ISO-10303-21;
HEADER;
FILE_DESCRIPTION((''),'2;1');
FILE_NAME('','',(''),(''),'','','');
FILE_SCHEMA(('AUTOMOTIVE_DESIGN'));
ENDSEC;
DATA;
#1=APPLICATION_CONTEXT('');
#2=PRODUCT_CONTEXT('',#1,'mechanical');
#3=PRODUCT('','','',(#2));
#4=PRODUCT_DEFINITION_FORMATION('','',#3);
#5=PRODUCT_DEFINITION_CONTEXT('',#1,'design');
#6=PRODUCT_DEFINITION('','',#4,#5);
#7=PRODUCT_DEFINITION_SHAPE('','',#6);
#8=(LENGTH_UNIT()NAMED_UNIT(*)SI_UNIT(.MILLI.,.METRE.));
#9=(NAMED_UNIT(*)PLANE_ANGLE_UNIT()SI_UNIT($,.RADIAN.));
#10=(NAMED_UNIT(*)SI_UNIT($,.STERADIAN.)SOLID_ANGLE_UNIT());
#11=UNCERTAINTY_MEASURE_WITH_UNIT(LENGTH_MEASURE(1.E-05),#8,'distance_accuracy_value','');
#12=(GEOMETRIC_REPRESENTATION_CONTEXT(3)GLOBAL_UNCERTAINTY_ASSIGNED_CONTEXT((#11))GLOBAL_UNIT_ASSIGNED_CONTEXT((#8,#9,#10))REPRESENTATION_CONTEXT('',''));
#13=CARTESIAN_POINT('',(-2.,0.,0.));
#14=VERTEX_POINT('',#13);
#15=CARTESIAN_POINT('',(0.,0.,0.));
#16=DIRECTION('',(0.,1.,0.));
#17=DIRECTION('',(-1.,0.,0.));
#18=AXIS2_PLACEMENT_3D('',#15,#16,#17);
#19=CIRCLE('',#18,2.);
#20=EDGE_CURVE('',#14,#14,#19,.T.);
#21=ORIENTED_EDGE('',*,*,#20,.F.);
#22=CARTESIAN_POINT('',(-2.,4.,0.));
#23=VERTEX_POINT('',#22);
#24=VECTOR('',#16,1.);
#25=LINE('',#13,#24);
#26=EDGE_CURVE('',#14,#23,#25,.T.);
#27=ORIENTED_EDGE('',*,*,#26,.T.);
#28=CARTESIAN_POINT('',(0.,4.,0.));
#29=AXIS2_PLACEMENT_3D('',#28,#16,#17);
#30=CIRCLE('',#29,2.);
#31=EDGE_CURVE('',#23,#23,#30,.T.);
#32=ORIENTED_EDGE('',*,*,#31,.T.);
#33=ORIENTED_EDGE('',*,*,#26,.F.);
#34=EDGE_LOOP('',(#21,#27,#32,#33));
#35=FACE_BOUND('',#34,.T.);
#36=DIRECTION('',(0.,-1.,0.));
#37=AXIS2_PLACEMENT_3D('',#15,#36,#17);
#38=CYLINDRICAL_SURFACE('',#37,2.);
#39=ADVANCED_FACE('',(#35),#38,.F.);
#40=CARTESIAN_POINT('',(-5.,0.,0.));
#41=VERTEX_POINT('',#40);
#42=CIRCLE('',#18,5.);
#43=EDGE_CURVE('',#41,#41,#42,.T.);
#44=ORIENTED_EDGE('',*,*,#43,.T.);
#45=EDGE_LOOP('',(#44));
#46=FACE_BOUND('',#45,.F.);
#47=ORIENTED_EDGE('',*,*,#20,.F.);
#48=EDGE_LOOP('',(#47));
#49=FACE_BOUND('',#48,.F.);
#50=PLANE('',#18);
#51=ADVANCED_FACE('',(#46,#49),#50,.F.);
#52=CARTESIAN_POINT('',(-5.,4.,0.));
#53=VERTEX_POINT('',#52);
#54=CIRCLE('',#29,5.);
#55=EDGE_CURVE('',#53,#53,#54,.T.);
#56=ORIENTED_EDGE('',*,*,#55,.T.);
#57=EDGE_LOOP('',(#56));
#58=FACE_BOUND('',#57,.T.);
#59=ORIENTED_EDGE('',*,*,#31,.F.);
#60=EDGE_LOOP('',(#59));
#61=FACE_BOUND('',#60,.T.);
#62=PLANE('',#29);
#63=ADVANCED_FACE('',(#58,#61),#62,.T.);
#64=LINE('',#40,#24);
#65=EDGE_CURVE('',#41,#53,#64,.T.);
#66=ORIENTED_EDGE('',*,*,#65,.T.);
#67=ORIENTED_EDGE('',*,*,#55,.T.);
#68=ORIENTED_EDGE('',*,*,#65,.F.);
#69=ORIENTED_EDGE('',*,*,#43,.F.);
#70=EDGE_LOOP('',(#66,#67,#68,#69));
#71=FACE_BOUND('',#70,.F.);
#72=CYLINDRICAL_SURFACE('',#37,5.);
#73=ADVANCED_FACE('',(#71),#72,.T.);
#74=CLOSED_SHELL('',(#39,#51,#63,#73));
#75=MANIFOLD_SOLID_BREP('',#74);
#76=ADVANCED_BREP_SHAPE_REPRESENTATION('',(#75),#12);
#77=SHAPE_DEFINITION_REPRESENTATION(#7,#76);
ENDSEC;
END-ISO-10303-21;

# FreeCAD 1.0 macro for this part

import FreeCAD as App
import Part
import Sketcher

doc = App.newDocument("Part")
body = doc.addObject("PartDesign::Body", "Body")

# Sketch on XZ plane
sketch1 = doc.addObject("Sketcher::SketchObject", "Sketch")
body.addObject(sketch1)
sketch1.AttachmentSupport = (doc.XZ_Plane, [""])
sketch1.MapMode = "FlatFace"
sketch1.addGeometry([
    Part.Circle(App.Vector(0, 0, 0), App.Vector(0, 0, 1), 5),
    Part.Circle(App.Vector(0, 0, 0), App.Vector(0, 0, 1), 2),
], False)
sketch1.addConstraint([
    Sketcher.Constraint("Coincident", 0, 3, -1, 1),
    Sketcher.Constraint("Coincident", 1, 3, -1, 1),
    Sketcher.Constraint("Diameter", 0, 10.0),
    Sketcher.Constraint("Diameter", 1, 4.0),
])
pad1 = doc.addObject("PartDesign::Pad", "Pad")
body.addObject(pad1)
pad1.Profile = sketch1
pad1.Length = 4
pad1.Reversed = True

doc.recompute()
